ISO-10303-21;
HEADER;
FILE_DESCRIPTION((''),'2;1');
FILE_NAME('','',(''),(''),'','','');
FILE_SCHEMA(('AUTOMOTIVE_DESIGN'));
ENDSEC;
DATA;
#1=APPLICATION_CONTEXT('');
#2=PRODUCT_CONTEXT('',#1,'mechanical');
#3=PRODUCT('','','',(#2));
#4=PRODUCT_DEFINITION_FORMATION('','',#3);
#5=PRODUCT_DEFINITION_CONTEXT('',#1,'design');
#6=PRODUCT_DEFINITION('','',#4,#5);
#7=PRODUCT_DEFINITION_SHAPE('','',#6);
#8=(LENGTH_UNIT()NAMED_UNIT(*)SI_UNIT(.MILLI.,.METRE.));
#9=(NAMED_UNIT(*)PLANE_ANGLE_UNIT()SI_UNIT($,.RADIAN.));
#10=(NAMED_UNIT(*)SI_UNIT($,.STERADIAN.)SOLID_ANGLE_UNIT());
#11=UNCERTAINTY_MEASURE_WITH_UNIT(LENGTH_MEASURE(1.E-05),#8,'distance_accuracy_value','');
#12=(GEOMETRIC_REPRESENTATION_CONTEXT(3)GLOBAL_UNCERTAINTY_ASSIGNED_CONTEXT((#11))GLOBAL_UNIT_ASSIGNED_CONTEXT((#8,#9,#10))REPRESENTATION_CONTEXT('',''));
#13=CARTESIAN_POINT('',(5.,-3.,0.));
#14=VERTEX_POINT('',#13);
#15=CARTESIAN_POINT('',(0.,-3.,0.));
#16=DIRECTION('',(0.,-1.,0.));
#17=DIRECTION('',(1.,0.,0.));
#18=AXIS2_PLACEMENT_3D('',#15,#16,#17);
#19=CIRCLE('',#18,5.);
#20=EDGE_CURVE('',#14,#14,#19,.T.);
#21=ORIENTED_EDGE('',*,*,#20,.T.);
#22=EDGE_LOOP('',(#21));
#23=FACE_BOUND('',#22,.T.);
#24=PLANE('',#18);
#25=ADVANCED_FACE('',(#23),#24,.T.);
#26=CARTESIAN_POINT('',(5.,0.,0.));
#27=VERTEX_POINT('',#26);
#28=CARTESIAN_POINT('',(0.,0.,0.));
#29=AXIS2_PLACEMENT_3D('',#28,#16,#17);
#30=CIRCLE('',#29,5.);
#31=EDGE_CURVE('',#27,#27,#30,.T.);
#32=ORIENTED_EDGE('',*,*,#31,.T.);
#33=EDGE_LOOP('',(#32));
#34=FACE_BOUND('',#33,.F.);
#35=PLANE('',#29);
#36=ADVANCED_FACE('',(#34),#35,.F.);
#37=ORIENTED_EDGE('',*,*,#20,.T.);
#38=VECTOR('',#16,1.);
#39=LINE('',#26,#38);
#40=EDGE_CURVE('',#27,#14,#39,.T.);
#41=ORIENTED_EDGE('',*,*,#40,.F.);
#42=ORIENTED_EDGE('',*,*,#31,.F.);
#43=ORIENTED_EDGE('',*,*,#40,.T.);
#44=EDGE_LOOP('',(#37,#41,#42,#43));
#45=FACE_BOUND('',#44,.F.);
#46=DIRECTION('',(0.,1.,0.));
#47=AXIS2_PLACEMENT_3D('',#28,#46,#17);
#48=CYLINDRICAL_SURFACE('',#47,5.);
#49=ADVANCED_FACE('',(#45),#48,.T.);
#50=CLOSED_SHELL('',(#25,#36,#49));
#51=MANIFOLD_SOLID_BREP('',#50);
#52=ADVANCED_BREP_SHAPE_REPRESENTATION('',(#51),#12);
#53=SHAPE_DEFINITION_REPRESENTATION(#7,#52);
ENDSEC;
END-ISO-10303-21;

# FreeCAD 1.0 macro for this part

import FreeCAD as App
import Part
import Sketcher

doc = App.newDocument("Part")
params = doc.addObject("Spreadsheet::Sheet", "Params")
for row, (alias, value) in enumerate([
    ("sketch1_diameter", "10 mm"),
    ("pad1_length", "3 mm"),
], start=1):
    params.set(f"A{row}", alias)
    params.set(f"B{row}", "=" + value)
    params.setAlias(f"B{row}", alias)

body = doc.addObject("PartDesign::Body", "Body")

# Sketch on XZ plane
sketch1 = body.newObject("Sketcher::SketchObject", "Sketch")
sketch1.AttachmentSupport = (doc.getObject("XZ_Plane"), [""])
sketch1.MapMode = "FlatFace"
sketch1.addGeometry(Part.Circle(App.Vector(0, 0, 0), App.Vector(0, 0, 1), 5), False)
sketch1.addConstraint([
    Sketcher.Constraint("Coincident", 0, 3, -1, 1),
    Sketcher.Constraint("Diameter", 0, 10.0),
])
sketch1.setExpression("Constraints[1]", "Params.sketch1_diameter")
pad1 = body.newObject("PartDesign::Pad", "Pad")
pad1.Profile = sketch1
pad1.setExpression("Length", "Params.pad1_length")

doc.recompute()
